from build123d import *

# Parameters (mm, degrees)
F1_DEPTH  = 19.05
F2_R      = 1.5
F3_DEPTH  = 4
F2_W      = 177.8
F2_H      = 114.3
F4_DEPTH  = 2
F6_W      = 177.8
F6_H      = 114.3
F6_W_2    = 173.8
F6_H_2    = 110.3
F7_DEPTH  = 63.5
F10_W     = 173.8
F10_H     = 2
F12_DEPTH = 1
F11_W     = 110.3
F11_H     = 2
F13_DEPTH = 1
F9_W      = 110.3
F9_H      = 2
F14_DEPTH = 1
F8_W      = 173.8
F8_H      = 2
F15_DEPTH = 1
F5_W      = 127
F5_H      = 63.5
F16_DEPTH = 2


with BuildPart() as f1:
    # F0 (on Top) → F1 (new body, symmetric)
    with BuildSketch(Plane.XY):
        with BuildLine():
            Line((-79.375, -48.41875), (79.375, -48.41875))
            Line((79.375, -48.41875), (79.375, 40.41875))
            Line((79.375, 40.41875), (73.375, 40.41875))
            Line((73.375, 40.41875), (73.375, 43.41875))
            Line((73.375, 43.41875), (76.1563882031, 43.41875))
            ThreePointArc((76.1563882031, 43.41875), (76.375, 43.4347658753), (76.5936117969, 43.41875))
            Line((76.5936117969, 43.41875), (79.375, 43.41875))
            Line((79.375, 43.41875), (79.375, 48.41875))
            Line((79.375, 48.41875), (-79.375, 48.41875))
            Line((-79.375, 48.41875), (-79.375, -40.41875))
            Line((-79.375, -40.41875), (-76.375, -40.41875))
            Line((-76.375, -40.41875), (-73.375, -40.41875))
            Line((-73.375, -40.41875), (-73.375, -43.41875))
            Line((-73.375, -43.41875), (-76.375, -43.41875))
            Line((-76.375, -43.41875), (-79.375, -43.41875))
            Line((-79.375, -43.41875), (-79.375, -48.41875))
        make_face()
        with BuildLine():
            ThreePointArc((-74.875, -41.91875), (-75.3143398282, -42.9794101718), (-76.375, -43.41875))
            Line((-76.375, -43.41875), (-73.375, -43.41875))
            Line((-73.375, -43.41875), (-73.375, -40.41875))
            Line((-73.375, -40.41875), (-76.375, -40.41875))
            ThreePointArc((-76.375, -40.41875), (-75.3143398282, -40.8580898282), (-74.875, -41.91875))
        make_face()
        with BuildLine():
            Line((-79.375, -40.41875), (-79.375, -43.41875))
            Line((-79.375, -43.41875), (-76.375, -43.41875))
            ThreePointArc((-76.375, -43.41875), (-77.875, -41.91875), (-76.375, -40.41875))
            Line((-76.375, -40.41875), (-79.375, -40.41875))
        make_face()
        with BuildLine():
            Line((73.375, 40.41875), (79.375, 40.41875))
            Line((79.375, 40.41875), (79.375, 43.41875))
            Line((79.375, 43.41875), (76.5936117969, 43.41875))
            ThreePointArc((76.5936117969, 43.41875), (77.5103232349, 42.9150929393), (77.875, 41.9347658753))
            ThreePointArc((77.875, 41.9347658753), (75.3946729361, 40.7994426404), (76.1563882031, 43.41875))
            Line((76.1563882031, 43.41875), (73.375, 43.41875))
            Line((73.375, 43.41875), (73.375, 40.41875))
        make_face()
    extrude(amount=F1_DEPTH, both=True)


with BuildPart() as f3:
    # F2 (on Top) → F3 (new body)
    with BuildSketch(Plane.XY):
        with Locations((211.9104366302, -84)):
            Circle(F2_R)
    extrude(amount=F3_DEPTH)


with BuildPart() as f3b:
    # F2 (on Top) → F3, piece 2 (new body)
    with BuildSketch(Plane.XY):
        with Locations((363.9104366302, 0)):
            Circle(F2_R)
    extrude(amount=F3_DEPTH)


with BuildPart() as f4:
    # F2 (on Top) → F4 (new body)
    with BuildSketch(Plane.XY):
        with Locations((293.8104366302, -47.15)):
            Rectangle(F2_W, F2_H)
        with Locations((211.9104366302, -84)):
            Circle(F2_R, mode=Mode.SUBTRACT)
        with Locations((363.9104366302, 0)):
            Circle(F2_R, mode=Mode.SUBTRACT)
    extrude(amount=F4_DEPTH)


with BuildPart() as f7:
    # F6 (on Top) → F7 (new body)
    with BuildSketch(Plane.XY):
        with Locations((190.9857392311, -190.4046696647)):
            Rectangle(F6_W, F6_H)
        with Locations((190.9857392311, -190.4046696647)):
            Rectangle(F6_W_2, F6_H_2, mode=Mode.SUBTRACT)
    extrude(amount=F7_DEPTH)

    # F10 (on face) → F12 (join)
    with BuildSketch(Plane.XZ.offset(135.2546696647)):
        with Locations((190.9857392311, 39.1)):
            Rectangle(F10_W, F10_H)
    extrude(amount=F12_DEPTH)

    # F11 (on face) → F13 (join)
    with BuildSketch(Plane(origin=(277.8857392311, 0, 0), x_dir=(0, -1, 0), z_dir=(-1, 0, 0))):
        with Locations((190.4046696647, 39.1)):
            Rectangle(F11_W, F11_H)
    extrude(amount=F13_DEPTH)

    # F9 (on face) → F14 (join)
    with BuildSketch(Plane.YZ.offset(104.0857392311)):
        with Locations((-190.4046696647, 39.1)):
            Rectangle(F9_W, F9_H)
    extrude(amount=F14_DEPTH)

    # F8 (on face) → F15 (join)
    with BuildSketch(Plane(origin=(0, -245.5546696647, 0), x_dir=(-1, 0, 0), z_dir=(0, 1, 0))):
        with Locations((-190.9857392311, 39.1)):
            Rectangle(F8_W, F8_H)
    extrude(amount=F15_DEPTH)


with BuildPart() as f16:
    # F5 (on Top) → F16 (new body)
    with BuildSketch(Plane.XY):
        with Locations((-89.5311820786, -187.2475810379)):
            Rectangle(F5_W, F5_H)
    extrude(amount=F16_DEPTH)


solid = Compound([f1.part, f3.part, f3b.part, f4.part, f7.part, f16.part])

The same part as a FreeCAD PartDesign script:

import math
import FreeCAD as App
import Part
import Sketcher
from FreeCAD import Vector
Q = App.Units.Quantity

doc = App.newDocument("Part")
body = doc.addObject("PartDesign::Body", "Body")

# Sketch on XY plane
sketch1 = doc.addObject("Sketcher::SketchObject", "Sketch")
body.addObject(sketch1)
sketch1.AttachmentSupport = (doc.XY_Plane, [""])
sketch1.MapMode = "FlatFace"
sketch1.addGeometry(Part.LineSegment(Vector(-79.38, -48.42, 0), Vector(79.38, -48.42, 0)), False)
sketch1.addGeometry(Part.LineSegment(Vector(79.38, -48.42, 0), Vector(79.38, 48.42, 0)), False)
sketch1.addGeometry(Part.LineSegment(Vector(79.38, 48.42, 0), Vector(-79.38, 48.42, 0)), False)
sketch1.addGeometry(Part.LineSegment(Vector(-79.38, 48.42, 0), Vector(-79.38, -48.42, 0)), False)
sketch1.addGeometry(Part.ArcOfCircle(Part.Circle(Vector(76.38, 41.93, 0), Vector(0, 0, 1), 1.5), math.radians(81.62), math.radians(98.38)), False)
sketch1.addGeometry(Part.ArcOfCircle(Part.Circle(Vector(76.38, 41.93, 0), Vector(0, 0, 1), 1.5), math.radians(0), math.radians(82)), False)
sketch1.addGeometry(Part.ArcOfCircle(Part.Circle(Vector(76.38, 41.93, 0), Vector(0, 0, 1), 1.5), math.radians(98), math.radians(360)), False)
sketch1.addGeometry(Part.ArcOfCircle(Part.Circle(Vector(-76.38, -41.92, 0), Vector(0, 0, 1), 1.5), math.radians(0), math.radians(90)), False)
sketch1.addGeometry(Part.ArcOfCircle(Part.Circle(Vector(-76.38, -41.92, 0), Vector(0, 0, 1), 1.5), math.radians(-90), math.radians(0)), False)
sketch1.addGeometry(Part.ArcOfCircle(Part.Circle(Vector(-76.38, -41.92, 0), Vector(0, 0, 1), 1.5), math.radians(90), math.radians(270)), False)
sketch1.addConstraint(Sketcher.Constraint("Coincident", 0, 2, 1, 1))
sketch1.addConstraint(Sketcher.Constraint("Coincident", 1, 2, 2, 1))
sketch1.addConstraint(Sketcher.Constraint("Coincident", 2, 2, 3, 1))
sketch1.addConstraint(Sketcher.Constraint("Coincident", 3, 2, 0, 1))
sketch1.addConstraint(Sketcher.Constraint("Tangent", 4, 1, 5, 2))
sketch1.addConstraint(Sketcher.Constraint("Tangent", 5, 1, 6, 2))
sketch1.addConstraint(Sketcher.Constraint("Tangent", 6, 1, 4, 2))
sketch1.addConstraint(Sketcher.Constraint("Tangent", 7, 1, 8, 2))
sketch1.addConstraint(Sketcher.Constraint("Tangent", 8, 1, 9, 2))
sketch1.addConstraint(Sketcher.Constraint("Tangent", 9, 1, 7, 2))
sketch1.addConstraint(Sketcher.Constraint("Horizontal", 0))
sketch1.addConstraint(Sketcher.Constraint("Vertical", 1))
sketch1.addConstraint(Sketcher.Constraint("Horizontal", 2))
sketch1.addConstraint(Sketcher.Constraint("Vertical", 3))
sketch1.addConstraint(Sketcher.Constraint("Equal", 6, 7))
sketch1.addConstraint(Sketcher.Constraint("Symmetric", 0, 2, 2, 2, -1, 1))
sketch1.addConstraint(Sketcher.Constraint("Horizontal", 6, 3, 5, 1))
sketch1.addConstraint(Sketcher.Constraint("Horizontal", 4, 1, 6, 1))
sketch1.addConstraint(Sketcher.Constraint("Horizontal", 9, 3, 7, 1))
sketch1.addConstraint(Sketcher.Constraint("Vertical", 9, 3, 8, 1))
sketch1.addConstraint(Sketcher.Constraint("Vertical", 8, 1, 9, 1))
sketch1.addConstraint(Sketcher.Constraint("DistanceX", 0, 1, 0, 2, Q("6.25 in")))
sketch1.addConstraint(Sketcher.Constraint("DistanceY", 1, 1, 1, 2, Q("3.8125 in")))
sketch1.addConstraint(Sketcher.Constraint("Radius", 4, Q("1.5 mm")))
sketch1.addConstraint(Sketcher.Constraint("DistanceX", -1, 1, 4, 3, Q("76.375 mm")))
sketch1.addConstraint(Sketcher.Constraint("DistanceX", 7, 3, -1, 1, Q("76.375 mm")))
sketch1.addConstraint(Sketcher.Constraint("DistanceY", 0, 2, 7, 3, Q("6.5 mm")))
sketch1.addConstraint(Sketcher.Constraint("DistanceY", 4, 1, 1, 2, Q("5 mm")))
sketch1.addConstraint(Sketcher.Constraint("DistanceX", -1, 1, 4, 1, Q("76.593612 mm")))
pad1 = doc.addObject("PartDesign::Pad", "Pad")
body.addObject(pad1)
pad1.Profile = sketch1
pad1.Length = Q("1.5 in")
pad1.Midplane = True
body2 = doc.addObject("PartDesign::Body", "Body001")

# Sketch on XY plane
sketch2 = doc.addObject("Sketcher::SketchObject", "Sketch001")
body2.addObject(sketch2)
sketch2.AttachmentSupport = (doc.getObject("XY_Plane001"), [""])
sketch2.MapMode = "FlatFace"
sketch2.addGeometry(Part.Circle(Vector(211.9, -84, 0), Vector(0, 0, 1), 1.5), False)
sketch2.addConstraint(Sketcher.Constraint("Diameter", 0, Q("3 mm")))
sketch2.addConstraint(Sketcher.Constraint("DistanceY", 0, 3, -1, 1, Q("84 mm")))
sketch2.addConstraint(Sketcher.Constraint("DistanceX", -1, 1, 0, 3, Q("211.910437 mm")))
pad2 = doc.addObject("PartDesign::Pad", "Pad001")
body2.addObject(pad2)
pad2.Profile = sketch2
pad2.Length = 4
body3 = doc.addObject("PartDesign::Body", "Body002")

# Sketch on XY plane
sketch3 = doc.addObject("Sketcher::SketchObject", "Sketch002")
body3.addObject(sketch3)
sketch3.AttachmentSupport = (doc.getObject("XY_Plane002"), [""])
sketch3.MapMode = "FlatFace"
sketch3.addGeometry(Part.Circle(Vector(363.9, 0, 0), Vector(0, 0, 1), 1.5), False)
sketch3.addConstraint(Sketcher.Constraint("PointOnObject", 0, 3, -1))
sketch3.addConstraint(Sketcher.Constraint("Diameter", 0, Q("3 mm")))
sketch3.addConstraint(Sketcher.Constraint("DistanceX", -1, 1, 0, 3, Q("363.910437 mm")))
pad3 = doc.addObject("PartDesign::Pad", "Pad002")
body3.addObject(pad3)
pad3.Profile = sketch3
pad3.Length = 4
body4 = doc.addObject("PartDesign::Body", "Body003")

# Sketch on XY plane
sketch4 = doc.addObject("Sketcher::SketchObject", "Sketch003")
body4.addObject(sketch4)
sketch4.AttachmentSupport = (doc.getObject("XY_Plane003"), [""])
sketch4.MapMode = "FlatFace"
sketch4.addGeometry(Part.LineSegment(Vector(204.9, 10, 0), Vector(204.9, -104.3, 0)), False)
sketch4.addGeometry(Part.LineSegment(Vector(204.9, -104.3, 0), Vector(382.7, -104.3, 0)), False)
sketch4.addGeometry(Part.LineSegment(Vector(382.7, -104.3, 0), Vector(382.7, 10, 0)), False)
sketch4.addGeometry(Part.LineSegment(Vector(382.7, 10, 0), Vector(204.9, 10, 0)), False)
sketch4.addGeometry(Part.Circle(Vector(211.9, -84, 0), Vector(0, 0, 1), 1.5), False)
sketch4.addGeometry(Part.Circle(Vector(363.9, 0, 0), Vector(0, 0, 1), 1.5), False)
sketch4.addConstraint(Sketcher.Constraint("Coincident", 0, 2, 1, 1))
sketch4.addConstraint(Sketcher.Constraint("Coincident", 1, 2, 2, 1))
sketch4.addConstraint(Sketcher.Constraint("Coincident", 2, 2, 3, 1))
sketch4.addConstraint(Sketcher.Constraint("Coincident", 3, 2, 0, 1))
sketch4.addConstraint(Sketcher.Constraint("Vertical", 0))
sketch4.addConstraint(Sketcher.Constraint("Horizontal", 1))
sketch4.addConstraint(Sketcher.Constraint("Vertical", 2))
sketch4.addConstraint(Sketcher.Constraint("Horizontal", 3))
sketch4.addConstraint(Sketcher.Constraint("Equal", 4, 5))
sketch4.addConstraint(Sketcher.Constraint("PointOnObject", 5, 3, -1))
sketch4.addConstraint(Sketcher.Constraint("DistanceX", 1, 1, 1, 2, Q("7 in")))
sketch4.addConstraint(Sketcher.Constraint("DistanceY", 0, 2, 0, 1, Q("4.5 in")))
sketch4.addConstraint(Sketcher.Constraint("Diameter", 4, Q("3 mm")))
sketch4.addConstraint(Sketcher.Constraint("DistanceY", 4, 3, -1, 1, Q("84 mm")))
sketch4.addConstraint(Sketcher.Constraint("DistanceY", 0, 2, -1, 1, Q("104.3 mm")))
sketch4.addConstraint(Sketcher.Constraint("DistanceX", 4, 3, 5, 3, Q("152 mm")))
sketch4.addConstraint(Sketcher.Constraint("DistanceX", 0, 2, 4, 3, Q("7 mm")))
sketch4.addConstraint(Sketcher.Constraint("DistanceX", -1, 1, 4, 3, Q("211.910437 mm")))
pad4 = doc.addObject("PartDesign::Pad", "Pad003")
body4.addObject(pad4)
pad4.Profile = sketch4
pad4.Length = 2
body5 = doc.addObject("PartDesign::Body", "Body004")

# Sketch on XY plane
sketch5 = doc.addObject("Sketcher::SketchObject", "Sketch004")
body5.addObject(sketch5)
sketch5.AttachmentSupport = (doc.getObject("XY_Plane004"), [""])
sketch5.MapMode = "FlatFace"
sketch5.addGeometry(Part.LineSegment(Vector(102, -133, 0), Vector(102, -248, 0)), False)
sketch5.addGeometry(Part.LineSegment(Vector(102, -248, 0), Vector(280, -248, 0)), False)
sketch5.addGeometry(Part.LineSegment(Vector(280, -248, 0), Vector(280, -133, 0)), False)
sketch5.addGeometry(Part.LineSegment(Vector(280, -133, 0), Vector(102, -133, 0)), False)
sketch5.addGeometry(Part.LineSegment(Vector(278, -246, 0), Vector(104, -246, 0)), False)
sketch5.addGeometry(Part.LineSegment(Vector(104, -246, 0), Vector(104, -135, 0)), False)
sketch5.addGeometry(Part.LineSegment(Vector(104, -135, 0), Vector(278, -135, 0)), False)
sketch5.addGeometry(Part.LineSegment(Vector(278, -135, 0), Vector(278, -246, 0)), False)
sketch5.addConstraint(Sketcher.Constraint("Coincident", 0, 2, 1, 1))
sketch5.addConstraint(Sketcher.Constraint("Coincident", 1, 2, 2, 1))
sketch5.addConstraint(Sketcher.Constraint("Coincident", 2, 2, 3, 1))
sketch5.addConstraint(Sketcher.Constraint("Coincident", 3, 2, 0, 1))
sketch5.addConstraint(Sketcher.Constraint("Coincident", 4, 2, 5, 1))
sketch5.addConstraint(Sketcher.Constraint("Coincident", 5, 2, 6, 1))
sketch5.addConstraint(Sketcher.Constraint("Coincident", 6, 2, 7, 1))
sketch5.addConstraint(Sketcher.Constraint("Coincident", 7, 2, 4, 1))
sketch5.addConstraint(Sketcher.Constraint("Vertical", 0))
sketch5.addConstraint(Sketcher.Constraint("Horizontal", 1))
sketch5.addConstraint(Sketcher.Constraint("Vertical", 2))
sketch5.addConstraint(Sketcher.Constraint("Horizontal", 3))
sketch5.addConstraint(Sketcher.Constraint("Horizontal", 4))
sketch5.addConstraint(Sketcher.Constraint("Vertical", 5))
sketch5.addConstraint(Sketcher.Constraint("Horizontal", 6))
sketch5.addConstraint(Sketcher.Constraint("Vertical", 7))
sketch5.addConstraint(Sketcher.Constraint("DistanceX", 1, 1, 1, 2, Q("7 in")))
sketch5.addConstraint(Sketcher.Constraint("DistanceY", 0, 2, 0, 1, Q("4.5 in")))
sketch5.addConstraint(Sketcher.Constraint("DistanceX", 4, 2, 4, 1, Q("173.8 mm")))
sketch5.addConstraint(Sketcher.Constraint("DistanceY", 5, 1, 5, 2, Q("110.3 mm")))
sketch5.addConstraint(Sketcher.Constraint("DistanceX", 0, 2, 4, 2, Q("2 mm")))
sketch5.addConstraint(Sketcher.Constraint("DistanceY", 0, 2, 4, 2, Q("2 mm")))
sketch5.addConstraint(Sketcher.Constraint("DistanceX", -1, 1, 0, 2, Q("102.085739 mm")))
sketch5.addConstraint(Sketcher.Constraint("DistanceY", 0, 2, -1, 1, Q("247.55467 mm")))
pad5 = doc.addObject("PartDesign::Pad", "Pad004")
body5.addObject(pad5)
pad5.Profile = sketch5
pad5.Length = Q("2.5 in")

# Sketch on XZ plane
sketch6 = doc.addObject("Sketcher::SketchObject", "Sketch005")
body5.addObject(sketch6)
sketch6.AttachmentSupport = (doc.getObject("XZ_Plane004"), [""])
sketch6.MapMode = "FlatFace"
sketch6.AttachmentOffset = App.Placement(Vector(0, 0, 135.25467), App.Rotation())
sketch6.addGeometry(Part.LineSegment(Vector(104.1, 40.1, 0), Vector(104.1, 38.1, 0)), False)
sketch6.addGeometry(Part.LineSegment(Vector(104.1, 38.1, 0), Vector(277.9, 38.1, 0)), False)
sketch6.addGeometry(Part.LineSegment(Vector(277.9, 38.1, 0), Vector(277.9, 40.1, 0)), False)
sketch6.addGeometry(Part.LineSegment(Vector(277.9, 40.1, 0), Vector(104.1, 40.1, 0)), False)
sketch6.addConstraint(Sketcher.Constraint("Coincident", 0, 2, 1, 1))
sketch6.addConstraint(Sketcher.Constraint("Coincident", 1, 2, 2, 1))
sketch6.addConstraint(Sketcher.Constraint("Coincident", 2, 2, 3, 1))
sketch6.addConstraint(Sketcher.Constraint("Coincident", 3, 2, 0, 1))
sketch6.addConstraint(Sketcher.Constraint("Vertical", 0))
sketch6.addConstraint(Sketcher.Constraint("Horizontal", 1))
sketch6.addConstraint(Sketcher.Constraint("Vertical", 2))
sketch6.addConstraint(Sketcher.Constraint("Horizontal", 3))
sketch6.addConstraint(Sketcher.Constraint("DistanceY", -1, 1, 0, 2, Q("1.5 in")))
sketch6.addConstraint(Sketcher.Constraint("DistanceX", 1, 1, 1, 2, Q("173.8 mm")))
sketch6.addConstraint(Sketcher.Constraint("DistanceY", 0, 2, 0, 1, Q("2 mm")))
sketch6.addConstraint(Sketcher.Constraint("DistanceX", -1, 1, 0, 2, Q("104.085739 mm")))
pad6 = doc.addObject("PartDesign::Pad", "Pad005")
body5.addObject(pad6)
pad6.Profile = sketch6
pad6.Length = 1

# Sketch on YZ plane
sketch7 = doc.addObject("Sketcher::SketchObject", "Sketch006")
body5.addObject(sketch7)
sketch7.AttachmentSupport = (doc.getObject("YZ_Plane004"), [""])
sketch7.MapMode = "FlatFace"
sketch7.AttachmentOffset = App.Placement(Vector(0, 0, 277.885739), App.Rotation())
sketch7.addGeometry(Part.LineSegment(Vector(-135.3, 40.1, 0), Vector(-135.3, 38.1, 0)), False)
sketch7.addGeometry(Part.LineSegment(Vector(-135.3, 38.1, 0), Vector(-245.6, 38.1, 0)), False)
sketch7.addGeometry(Part.LineSegment(Vector(-245.6, 38.1, 0), Vector(-245.6, 40.1, 0)), False)
sketch7.addGeometry(Part.LineSegment(Vector(-245.6, 40.1, 0), Vector(-135.3, 40.1, 0)), False)
sketch7.addConstraint(Sketcher.Constraint("Coincident", 0, 2, 1, 1))
sketch7.addConstraint(Sketcher.Constraint("Coincident", 1, 2, 2, 1))
sketch7.addConstraint(Sketcher.Constraint("Coincident", 2, 2, 3, 1))
sketch7.addConstraint(Sketcher.Constraint("Coincident", 3, 2, 0, 1))
sketch7.addConstraint(Sketcher.Constraint("Vertical", 0))
sketch7.addConstraint(Sketcher.Constraint("Horizontal", 1))
sketch7.addConstraint(Sketcher.Constraint("Vertical", 2))
sketch7.addConstraint(Sketcher.Constraint("Horizontal", 3))
sketch7.addConstraint(Sketcher.Constraint("DistanceY", -1, 1, 0, 2, Q("1.5 in")))
sketch7.addConstraint(Sketcher.Constraint("DistanceX", 1, 2, 1, 1, Q("110.3 mm")))
sketch7.addConstraint(Sketcher.Constraint("DistanceY", 0, 2, 0, 1, Q("2 mm")))
sketch7.addConstraint(Sketcher.Constraint("DistanceX", 0, 2, -1, 1, Q("135.25467 mm")))
pad7 = doc.addObject("PartDesign::Pad", "Pad006")
body5.addObject(pad7)
pad7.Profile = sketch7
pad7.Length = 1
pad7.Reversed = True

# Sketch on YZ plane
sketch8 = doc.addObject("Sketcher::SketchObject", "Sketch007")
body5.addObject(sketch8)
sketch8.AttachmentSupport = (doc.getObject("YZ_Plane004"), [""])
sketch8.MapMode = "FlatFace"
sketch8.AttachmentOffset = App.Placement(Vector(0, 0, 104.085739), App.Rotation())
sketch8.addGeometry(Part.LineSegment(Vector(-245.6, 40.1, 0), Vector(-245.6, 38.1, 0)), False)
sketch8.addGeometry(Part.LineSegment(Vector(-245.6, 38.1, 0), Vector(-135.3, 38.1, 0)), False)
sketch8.addGeometry(Part.LineSegment(Vector(-135.3, 38.1, 0), Vector(-135.3, 40.1, 0)), False)
sketch8.addGeometry(Part.LineSegment(Vector(-135.3, 40.1, 0), Vector(-245.6, 40.1, 0)), False)
sketch8.addConstraint(Sketcher.Constraint("Coincident", 0, 2, 1, 1))
sketch8.addConstraint(Sketcher.Constraint("Coincident", 1, 2, 2, 1))
sketch8.addConstraint(Sketcher.Constraint("Coincident", 2, 2, 3, 1))
sketch8.addConstraint(Sketcher.Constraint("Coincident", 3, 2, 0, 1))
sketch8.addConstraint(Sketcher.Constraint("Vertical", 0))
sketch8.addConstraint(Sketcher.Constraint("Horizontal", 1))
sketch8.addConstraint(Sketcher.Constraint("Vertical", 2))
sketch8.addConstraint(Sketcher.Constraint("Horizontal", 3))
sketch8.addConstraint(Sketcher.Constraint("DistanceY", -1, 1, 0, 2, Q("1.5 in")))
sketch8.addConstraint(Sketcher.Constraint("DistanceX", 1, 1, 1, 2, Q("110.3 mm")))
sketch8.addConstraint(Sketcher.Constraint("DistanceY", 0, 2, 0, 1, Q("2 mm")))
sketch8.addConstraint(Sketcher.Constraint("DistanceX", 0, 2, -1, 1, Q("245.55467 mm")))
pad8 = doc.addObject("PartDesign::Pad", "Pad007")
body5.addObject(pad8)
pad8.Profile = sketch8
pad8.Length = 1

# Sketch on XZ plane
sketch9 = doc.addObject("Sketcher::SketchObject", "Sketch008")
body5.addObject(sketch9)
sketch9.AttachmentSupport = (doc.getObject("XZ_Plane004"), [""])
sketch9.MapMode = "FlatFace"
sketch9.AttachmentOffset = App.Placement(Vector(0, 0, 245.55467), App.Rotation())
sketch9.addGeometry(Part.LineSegment(Vector(277.9, 40.1, 0), Vector(277.9, 38.1, 0)), False)
sketch9.addGeometry(Part.LineSegment(Vector(277.9, 38.1, 0), Vector(104.1, 38.1, 0)), False)
sketch9.addGeometry(Part.LineSegment(Vector(104.1, 38.1, 0), Vector(104.1, 40.1, 0)), False)
sketch9.addGeometry(Part.LineSegment(Vector(104.1, 40.1, 0), Vector(277.9, 40.1, 0)), False)
sketch9.addConstraint(Sketcher.Constraint("Coincident", 0, 2, 1, 1))
sketch9.addConstraint(Sketcher.Constraint("Coincident", 1, 2, 2, 1))
sketch9.addConstraint(Sketcher.Constraint("Coincident", 2, 2, 3, 1))
sketch9.addConstraint(Sketcher.Constraint("Coincident", 3, 2, 0, 1))
sketch9.addConstraint(Sketcher.Constraint("Vertical", 0))
sketch9.addConstraint(Sketcher.Constraint("Horizontal", 1))
sketch9.addConstraint(Sketcher.Constraint("Vertical", 2))
sketch9.addConstraint(Sketcher.Constraint("Horizontal", 3))
sketch9.addConstraint(Sketcher.Constraint("DistanceY", -1, 1, 0, 2, Q("1.5 in")))
sketch9.addConstraint(Sketcher.Constraint("DistanceX", 1, 2, 1, 1, Q("173.8 mm")))
sketch9.addConstraint(Sketcher.Constraint("DistanceY", 0, 2, 0, 1, Q("2 mm")))
sketch9.addConstraint(Sketcher.Constraint("DistanceX", -1, 1, 0, 2, Q("277.885739 mm")))
pad9 = doc.addObject("PartDesign::Pad", "Pad008")
body5.addObject(pad9)
pad9.Profile = sketch9
pad9.Length = 1
pad9.Reversed = True
body6 = doc.addObject("PartDesign::Body", "Body005")

# Sketch on XY plane
sketch10 = doc.addObject("Sketcher::SketchObject", "Sketch009")
body6.addObject(sketch10)
sketch10.AttachmentSupport = (doc.getObject("XY_Plane005"), [""])
sketch10.MapMode = "FlatFace"
sketch10.addGeometry(Part.LineSegment(Vector(-153, -155, 0), Vector(-153, -219, 0)), False)
sketch10.addGeometry(Part.LineSegment(Vector(-153, -219, 0), Vector(-26, -219, 0)), False)
sketch10.addGeometry(Part.LineSegment(Vector(-26, -219, 0), Vector(-26, -155, 0)), False)
sketch10.addGeometry(Part.LineSegment(Vector(-26, -155, 0), Vector(-153, -155, 0)), False)
sketch10.addConstraint(Sketcher.Constraint("Coincident", 0, 2, 1, 1))
sketch10.addConstraint(Sketcher.Constraint("Coincident", 1, 2, 2, 1))
sketch10.addConstraint(Sketcher.Constraint("Coincident", 2, 2, 3, 1))
sketch10.addConstraint(Sketcher.Constraint("Coincident", 3, 2, 0, 1))
sketch10.addConstraint(Sketcher.Constraint("Vertical", 0))
sketch10.addConstraint(Sketcher.Constraint("Horizontal", 1))
sketch10.addConstraint(Sketcher.Constraint("Vertical", 2))
sketch10.addConstraint(Sketcher.Constraint("Horizontal", 3))
sketch10.addConstraint(Sketcher.Constraint("DistanceX", 1, 1, 1, 2, Q("5 in")))
sketch10.addConstraint(Sketcher.Constraint("DistanceY", 0, 2, 0, 1, Q("2.5 in")))
sketch10.addConstraint(Sketcher.Constraint("DistanceY", 0, 2, -1, 1, Q("218.997581 mm")))
sketch10.addConstraint(Sketcher.Constraint("DistanceX", 0, 2, -1, 1, Q("153.031182 mm")))
pad10 = doc.addObject("PartDesign::Pad", "Pad009")
body6.addObject(pad10)
pad10.Profile = sketch10
pad10.Length = 2

doc.recompute()
